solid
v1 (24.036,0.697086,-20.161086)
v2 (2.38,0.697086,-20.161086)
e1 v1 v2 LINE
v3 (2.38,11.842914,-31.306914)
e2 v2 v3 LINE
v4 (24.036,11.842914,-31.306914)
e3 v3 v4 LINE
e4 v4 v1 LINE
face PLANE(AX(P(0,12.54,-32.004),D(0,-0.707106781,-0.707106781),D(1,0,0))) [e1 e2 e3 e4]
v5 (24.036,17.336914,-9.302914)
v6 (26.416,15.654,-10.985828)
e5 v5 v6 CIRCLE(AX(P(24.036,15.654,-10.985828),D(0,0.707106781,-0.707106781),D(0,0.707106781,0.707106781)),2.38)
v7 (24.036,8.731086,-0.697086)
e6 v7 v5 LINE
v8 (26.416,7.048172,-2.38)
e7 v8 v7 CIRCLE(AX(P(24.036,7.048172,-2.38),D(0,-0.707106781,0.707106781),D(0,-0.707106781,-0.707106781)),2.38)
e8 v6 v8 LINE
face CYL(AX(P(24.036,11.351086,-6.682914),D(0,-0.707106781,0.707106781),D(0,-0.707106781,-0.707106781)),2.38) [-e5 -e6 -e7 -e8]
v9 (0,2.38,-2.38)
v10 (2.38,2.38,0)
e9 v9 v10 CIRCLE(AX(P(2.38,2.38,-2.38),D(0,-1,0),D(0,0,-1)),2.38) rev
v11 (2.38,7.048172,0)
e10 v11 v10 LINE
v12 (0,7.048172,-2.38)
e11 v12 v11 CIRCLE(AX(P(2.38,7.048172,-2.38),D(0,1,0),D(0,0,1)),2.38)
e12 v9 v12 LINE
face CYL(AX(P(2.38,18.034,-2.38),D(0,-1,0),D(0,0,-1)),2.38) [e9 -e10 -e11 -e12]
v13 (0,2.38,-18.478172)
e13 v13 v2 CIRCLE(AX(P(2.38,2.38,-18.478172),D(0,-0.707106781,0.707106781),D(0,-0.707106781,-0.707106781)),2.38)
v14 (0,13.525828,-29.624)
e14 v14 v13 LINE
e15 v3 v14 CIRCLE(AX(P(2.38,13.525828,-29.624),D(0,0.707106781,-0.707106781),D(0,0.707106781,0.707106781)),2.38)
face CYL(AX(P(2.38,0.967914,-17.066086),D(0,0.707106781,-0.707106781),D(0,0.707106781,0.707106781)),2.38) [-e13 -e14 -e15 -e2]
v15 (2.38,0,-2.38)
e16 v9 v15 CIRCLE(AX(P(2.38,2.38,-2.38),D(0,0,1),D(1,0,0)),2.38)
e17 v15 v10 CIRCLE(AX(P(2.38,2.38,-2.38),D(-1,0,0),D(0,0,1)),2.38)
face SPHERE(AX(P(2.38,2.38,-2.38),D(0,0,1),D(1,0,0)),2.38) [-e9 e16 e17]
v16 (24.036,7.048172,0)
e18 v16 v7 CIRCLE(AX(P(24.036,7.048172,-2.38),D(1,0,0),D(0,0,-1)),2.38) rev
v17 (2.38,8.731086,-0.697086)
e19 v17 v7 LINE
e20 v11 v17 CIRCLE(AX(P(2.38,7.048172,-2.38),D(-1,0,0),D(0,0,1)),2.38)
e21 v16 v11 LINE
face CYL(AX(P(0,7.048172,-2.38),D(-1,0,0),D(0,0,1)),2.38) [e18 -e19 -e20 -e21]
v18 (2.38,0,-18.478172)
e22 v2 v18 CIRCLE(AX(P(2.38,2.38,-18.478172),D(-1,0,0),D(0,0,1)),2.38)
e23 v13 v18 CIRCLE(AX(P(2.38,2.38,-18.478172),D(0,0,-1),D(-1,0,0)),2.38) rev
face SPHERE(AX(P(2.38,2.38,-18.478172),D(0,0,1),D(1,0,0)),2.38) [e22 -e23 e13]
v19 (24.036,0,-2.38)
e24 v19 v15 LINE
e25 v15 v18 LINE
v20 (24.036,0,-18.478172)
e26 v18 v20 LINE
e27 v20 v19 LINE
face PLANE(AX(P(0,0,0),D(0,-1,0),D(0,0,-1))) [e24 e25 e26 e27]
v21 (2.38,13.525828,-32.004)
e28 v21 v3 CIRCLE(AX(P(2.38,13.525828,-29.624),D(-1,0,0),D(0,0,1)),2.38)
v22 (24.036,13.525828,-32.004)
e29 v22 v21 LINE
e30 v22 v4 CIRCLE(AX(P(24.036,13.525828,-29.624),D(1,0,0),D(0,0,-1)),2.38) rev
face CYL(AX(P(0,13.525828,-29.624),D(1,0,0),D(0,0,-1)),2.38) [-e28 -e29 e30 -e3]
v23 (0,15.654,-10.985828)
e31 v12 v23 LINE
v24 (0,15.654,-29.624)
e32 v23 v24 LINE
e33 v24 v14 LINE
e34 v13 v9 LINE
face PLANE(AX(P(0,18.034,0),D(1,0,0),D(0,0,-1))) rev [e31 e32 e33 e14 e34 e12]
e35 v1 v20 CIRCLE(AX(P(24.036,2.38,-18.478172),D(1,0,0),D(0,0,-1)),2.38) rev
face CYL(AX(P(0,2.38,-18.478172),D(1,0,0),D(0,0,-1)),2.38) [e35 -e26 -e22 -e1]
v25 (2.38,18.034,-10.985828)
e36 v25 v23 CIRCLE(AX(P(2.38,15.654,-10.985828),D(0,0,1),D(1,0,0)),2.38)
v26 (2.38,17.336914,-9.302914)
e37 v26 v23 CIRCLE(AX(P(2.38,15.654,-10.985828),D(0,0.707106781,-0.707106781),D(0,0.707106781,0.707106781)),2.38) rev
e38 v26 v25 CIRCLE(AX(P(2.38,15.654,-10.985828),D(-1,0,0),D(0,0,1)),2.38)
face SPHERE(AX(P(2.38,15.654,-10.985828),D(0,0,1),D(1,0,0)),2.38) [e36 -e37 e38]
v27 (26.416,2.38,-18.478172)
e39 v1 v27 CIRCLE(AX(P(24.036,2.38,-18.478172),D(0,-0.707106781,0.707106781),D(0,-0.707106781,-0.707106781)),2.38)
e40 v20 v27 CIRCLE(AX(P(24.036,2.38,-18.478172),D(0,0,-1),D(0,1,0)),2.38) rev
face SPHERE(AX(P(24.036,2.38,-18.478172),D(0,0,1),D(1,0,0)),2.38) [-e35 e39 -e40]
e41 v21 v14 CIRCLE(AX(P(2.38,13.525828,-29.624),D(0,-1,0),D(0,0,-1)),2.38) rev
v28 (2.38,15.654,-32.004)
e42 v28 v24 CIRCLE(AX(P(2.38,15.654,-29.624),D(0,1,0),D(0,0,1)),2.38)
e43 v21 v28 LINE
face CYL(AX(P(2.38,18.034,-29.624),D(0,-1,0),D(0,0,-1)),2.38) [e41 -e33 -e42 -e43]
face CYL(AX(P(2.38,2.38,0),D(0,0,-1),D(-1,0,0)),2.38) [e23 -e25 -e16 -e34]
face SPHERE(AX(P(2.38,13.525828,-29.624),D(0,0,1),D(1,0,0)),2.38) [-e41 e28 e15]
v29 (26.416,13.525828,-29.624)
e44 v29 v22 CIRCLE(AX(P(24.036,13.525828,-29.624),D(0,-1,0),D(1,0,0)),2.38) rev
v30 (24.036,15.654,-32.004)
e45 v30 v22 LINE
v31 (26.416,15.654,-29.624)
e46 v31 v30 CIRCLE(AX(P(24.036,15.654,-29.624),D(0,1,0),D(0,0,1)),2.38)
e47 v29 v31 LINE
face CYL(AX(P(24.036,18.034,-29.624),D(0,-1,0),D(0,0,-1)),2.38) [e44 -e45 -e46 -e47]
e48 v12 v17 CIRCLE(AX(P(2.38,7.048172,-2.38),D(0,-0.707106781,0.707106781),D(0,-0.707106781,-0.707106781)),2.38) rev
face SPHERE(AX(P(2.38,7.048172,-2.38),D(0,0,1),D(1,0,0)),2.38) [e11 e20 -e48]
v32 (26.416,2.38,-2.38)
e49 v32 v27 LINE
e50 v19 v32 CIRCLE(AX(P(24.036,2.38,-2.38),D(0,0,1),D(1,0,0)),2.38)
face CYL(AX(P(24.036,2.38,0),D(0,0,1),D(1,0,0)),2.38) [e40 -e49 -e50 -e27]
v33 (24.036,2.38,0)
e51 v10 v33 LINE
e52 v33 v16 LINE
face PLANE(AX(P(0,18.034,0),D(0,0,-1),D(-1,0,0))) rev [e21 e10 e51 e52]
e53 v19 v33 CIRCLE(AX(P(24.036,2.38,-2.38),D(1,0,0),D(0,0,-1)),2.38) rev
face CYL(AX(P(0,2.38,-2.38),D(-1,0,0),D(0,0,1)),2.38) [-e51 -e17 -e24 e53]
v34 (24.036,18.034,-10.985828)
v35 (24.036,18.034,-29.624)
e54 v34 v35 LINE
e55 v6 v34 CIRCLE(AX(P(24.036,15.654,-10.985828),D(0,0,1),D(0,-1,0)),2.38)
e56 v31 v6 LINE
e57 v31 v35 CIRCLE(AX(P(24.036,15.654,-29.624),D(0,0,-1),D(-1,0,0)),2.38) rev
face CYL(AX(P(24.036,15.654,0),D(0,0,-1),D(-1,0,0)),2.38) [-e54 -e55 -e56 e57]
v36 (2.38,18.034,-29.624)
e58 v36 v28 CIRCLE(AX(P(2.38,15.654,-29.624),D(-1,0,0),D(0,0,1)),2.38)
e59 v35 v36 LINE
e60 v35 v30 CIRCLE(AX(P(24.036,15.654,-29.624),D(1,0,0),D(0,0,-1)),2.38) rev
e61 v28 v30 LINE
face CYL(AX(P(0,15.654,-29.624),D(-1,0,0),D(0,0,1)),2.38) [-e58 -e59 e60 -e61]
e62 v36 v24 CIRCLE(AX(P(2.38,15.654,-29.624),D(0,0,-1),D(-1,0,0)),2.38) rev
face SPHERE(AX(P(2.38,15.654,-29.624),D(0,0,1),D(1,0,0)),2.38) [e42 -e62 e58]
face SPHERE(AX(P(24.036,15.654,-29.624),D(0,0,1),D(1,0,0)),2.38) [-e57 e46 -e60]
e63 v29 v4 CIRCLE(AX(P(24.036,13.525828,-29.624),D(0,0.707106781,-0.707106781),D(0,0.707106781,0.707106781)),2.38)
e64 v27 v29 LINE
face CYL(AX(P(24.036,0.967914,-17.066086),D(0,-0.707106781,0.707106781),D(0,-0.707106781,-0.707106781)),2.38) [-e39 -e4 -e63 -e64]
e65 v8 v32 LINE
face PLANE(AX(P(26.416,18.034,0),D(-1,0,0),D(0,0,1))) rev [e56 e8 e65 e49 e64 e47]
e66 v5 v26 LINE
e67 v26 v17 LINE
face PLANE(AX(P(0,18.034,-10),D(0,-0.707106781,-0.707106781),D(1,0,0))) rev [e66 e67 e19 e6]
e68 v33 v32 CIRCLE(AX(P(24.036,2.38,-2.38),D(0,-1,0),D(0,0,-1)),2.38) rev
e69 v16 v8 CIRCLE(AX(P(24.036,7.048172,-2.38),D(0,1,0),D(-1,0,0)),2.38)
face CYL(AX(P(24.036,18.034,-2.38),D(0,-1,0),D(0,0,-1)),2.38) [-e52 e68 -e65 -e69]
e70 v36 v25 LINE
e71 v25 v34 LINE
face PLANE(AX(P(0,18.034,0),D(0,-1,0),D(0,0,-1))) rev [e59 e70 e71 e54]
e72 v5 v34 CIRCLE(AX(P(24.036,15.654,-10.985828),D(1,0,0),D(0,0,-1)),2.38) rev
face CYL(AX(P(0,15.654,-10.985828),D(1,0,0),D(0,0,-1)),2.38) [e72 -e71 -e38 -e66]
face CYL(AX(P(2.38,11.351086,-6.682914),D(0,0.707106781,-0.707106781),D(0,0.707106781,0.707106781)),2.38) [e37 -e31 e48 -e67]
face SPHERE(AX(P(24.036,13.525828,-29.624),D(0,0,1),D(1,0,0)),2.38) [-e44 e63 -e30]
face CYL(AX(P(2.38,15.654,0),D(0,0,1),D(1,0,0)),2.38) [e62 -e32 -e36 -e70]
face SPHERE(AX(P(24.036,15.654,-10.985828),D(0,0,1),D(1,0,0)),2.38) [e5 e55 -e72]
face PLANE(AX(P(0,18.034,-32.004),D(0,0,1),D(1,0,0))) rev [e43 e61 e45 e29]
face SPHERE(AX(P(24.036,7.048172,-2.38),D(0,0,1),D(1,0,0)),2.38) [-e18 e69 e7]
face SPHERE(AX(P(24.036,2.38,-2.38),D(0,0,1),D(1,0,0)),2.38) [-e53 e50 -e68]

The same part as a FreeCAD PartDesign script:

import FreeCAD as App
import Part
import Sketcher

V = App.Vector
Q = App.Units.Quantity


def edges_at(feature, points):
    """Names of the edges that pass closest to the given points."""
    edges = feature.Shape.Edges
    near = lambda p: min(range(len(edges)), key=lambda i: edges[i].distToShape(Part.Vertex(*p))[0])
    return sorted({f"Edge{near(p) + 1}" for p in points})


def add_polygon(sketch, points):
    """Adds a closed chain of lines whose ends are joined by coincident constraints."""
    first, n = sketch.GeometryCount, len(points)
    for a, b in zip(points, points[1:] + points[:1]):
        sketch.addGeometry(Part.LineSegment(App.Vector(*a, 0), App.Vector(*b, 0)), False)
    for i in range(n):
        sketch.addConstraint(Sketcher.Constraint("Coincident", first + i, 2, first + (i + 1) % n, 1))

doc = App.newDocument("Part")
body = doc.addObject("PartDesign::Body", "Body")

sketch1 = body.newObject("Sketcher::SketchObject", "Sketch")
sketch1.AttachmentSupport = (doc.getObject("XZ_Plane"), [""])
sketch1.MapMode = "FlatFace"
add_polygon(sketch1, [(0, -32), (0, 0), (26, 0), (26, -32)])
sketch1.addConstraint(Sketcher.Constraint("Vertical", 0))
sketch1.addConstraint(Sketcher.Constraint("Horizontal", 1))
sketch1.addConstraint(Sketcher.Constraint("Vertical", 2))
sketch1.addConstraint(Sketcher.Constraint("Horizontal", 3))
sketch1.addConstraint(Sketcher.Constraint("Coincident", 0, 2, -1, 1))
sketch1.addConstraint(Sketcher.Constraint("DistanceX", 1, 1, 1, 2, Q("1.04 in")))
sketch1.addConstraint(Sketcher.Constraint("DistanceY", 0, 1, 0, 2, Q("1.26 in")))
pad1 = body.newObject("PartDesign::Pad", "Pad")
pad1.Profile = sketch1
pad1.Length = Q("0.71 in")
pad1.Reversed = True
doc.recompute()

chamfer = body.newObject("PartDesign::Chamfer", "Chamfer")
chamfer.Base = (pad1, edges_at(pad1, [(13.208, 0, -32.004)]))
chamfer.Size = 12.54
doc.recompute()

chamfer2 = body.newObject("PartDesign::Chamfer", "Chamfer001")
chamfer2.Base = (chamfer, edges_at(chamfer, [(13.208, 18.034, 0)]))
chamfer2.Size = 10
doc.recompute()

fillet = body.newObject("PartDesign::Fillet", "Fillet")
fillet.Base = (chamfer2, ["Edge1"])
fillet.UseAllEdges = True
fillet.Radius = 2.38

doc.recompute()
